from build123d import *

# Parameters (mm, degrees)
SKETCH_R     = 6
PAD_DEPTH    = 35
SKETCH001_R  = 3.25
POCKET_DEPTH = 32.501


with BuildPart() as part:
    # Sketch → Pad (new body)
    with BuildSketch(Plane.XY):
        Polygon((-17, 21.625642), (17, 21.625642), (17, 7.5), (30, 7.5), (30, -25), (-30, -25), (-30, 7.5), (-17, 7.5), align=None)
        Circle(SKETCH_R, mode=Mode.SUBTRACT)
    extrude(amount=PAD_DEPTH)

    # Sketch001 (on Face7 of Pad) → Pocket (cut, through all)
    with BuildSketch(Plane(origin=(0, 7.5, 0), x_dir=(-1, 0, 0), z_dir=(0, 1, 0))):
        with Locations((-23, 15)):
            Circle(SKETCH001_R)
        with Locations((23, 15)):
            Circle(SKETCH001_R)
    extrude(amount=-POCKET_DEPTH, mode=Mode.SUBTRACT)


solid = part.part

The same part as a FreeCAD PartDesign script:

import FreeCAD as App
import Part
import Sketcher


def add_polygon(sketch, points):
    """Adds a closed chain of lines whose ends are joined by coincident constraints."""
    first, n = sketch.GeometryCount, len(points)
    for a, b in zip(points, points[1:] + points[:1]):
        sketch.addGeometry(Part.LineSegment(App.Vector(*a, 0), App.Vector(*b, 0)), False)
    for i in range(n):
        sketch.addConstraint(Sketcher.Constraint("Coincident", first + i, 2, first + (i + 1) % n, 1))

doc = App.newDocument("Part")
body = doc.addObject("PartDesign::Body", "Body")

sketch1 = body.newObject("Sketcher::SketchObject", "Sketch")
sketch1.AttachmentSupport = (doc.getObject("XY_Plane"), [""])
sketch1.MapMode = "FlatFace"
add_polygon(sketch1, [(17, 21.625642), (-17, 21.625642), (-17, 7.5), (-30, 7.5), (-30, -25), (30, -25), (30, 7.5), (17, 7.5)])
sketch1.addGeometry(Part.Circle(App.Vector(0, 0, 0), App.Vector(0, 0, 1), 6), False)
sketch1.addConstraint([
    Sketcher.Constraint("Horizontal", 0),
    Sketcher.Constraint("Vertical", 1),
    Sketcher.Constraint("Horizontal", 2),
    Sketcher.Constraint("Vertical", 3),
    Sketcher.Constraint("Horizontal", 4),
    Sketcher.Constraint("Vertical", 5),
    Sketcher.Constraint("Horizontal", 6),
    Sketcher.Constraint("Vertical", 7),
    Sketcher.Constraint("Coincident", 8, 3, -1, 1),
    Sketcher.Constraint("Symmetric", 2, 2, 5, 2, -2),
    Sketcher.Constraint("Equal", 2, 6),
    Sketcher.Constraint("Diameter", 8, 12.0),
    Sketcher.Constraint("DistanceX", 0, 2, 0, 1, 34.0),
    Sketcher.Constraint("DistanceX", 2, 2, 2, 1, 13.0),
    Sketcher.Constraint("DistanceY", 3, 2, 3, 1, 32.5),
    Sketcher.Constraint("DistanceY", 3, 2, -1, 1, 25.0),
    Sketcher.Constraint("DistanceY", 1, 2, 1, 1, 14.125642),
])
pad1 = body.newObject("PartDesign::Pad", "Pad")
pad1.Profile = sketch1
pad1.Length = 35

sketch2 = body.newObject("Sketcher::SketchObject", "Sketch001")
sketch2.AttachmentSupport = (doc.getObject("XZ_Plane"), [""])
sketch2.MapMode = "FlatFace"
sketch2.AttachmentOffset = App.Placement(App.Vector(0, 0, -7.5), App.Rotation())
sketch2.addGeometry([
    Part.Circle(App.Vector(23, 15, 0), App.Vector(0, 0, 1), 3.25),
    Part.Circle(App.Vector(-23, 15, 0), App.Vector(0, 0, 1), 3.25),
], False)
sketch2.addConstraint([
    Sketcher.Constraint("Equal", 0, 1),
    Sketcher.Constraint("Symmetric", 0, 3, 1, 3, -2),
    Sketcher.Constraint("Diameter", 0, 6.5),
    Sketcher.Constraint("DistanceX", -1, 1, 0, 3, 23.0),
    Sketcher.Constraint("DistanceY", -1, 1, 0, 3, 15.0),
])
pocket1 = body.newObject("PartDesign::Pocket", "Pocket")
pocket1.Profile = sketch2
pocket1.Type = "ThroughAll"
pocket1.Reversed = True

doc.recompute()
